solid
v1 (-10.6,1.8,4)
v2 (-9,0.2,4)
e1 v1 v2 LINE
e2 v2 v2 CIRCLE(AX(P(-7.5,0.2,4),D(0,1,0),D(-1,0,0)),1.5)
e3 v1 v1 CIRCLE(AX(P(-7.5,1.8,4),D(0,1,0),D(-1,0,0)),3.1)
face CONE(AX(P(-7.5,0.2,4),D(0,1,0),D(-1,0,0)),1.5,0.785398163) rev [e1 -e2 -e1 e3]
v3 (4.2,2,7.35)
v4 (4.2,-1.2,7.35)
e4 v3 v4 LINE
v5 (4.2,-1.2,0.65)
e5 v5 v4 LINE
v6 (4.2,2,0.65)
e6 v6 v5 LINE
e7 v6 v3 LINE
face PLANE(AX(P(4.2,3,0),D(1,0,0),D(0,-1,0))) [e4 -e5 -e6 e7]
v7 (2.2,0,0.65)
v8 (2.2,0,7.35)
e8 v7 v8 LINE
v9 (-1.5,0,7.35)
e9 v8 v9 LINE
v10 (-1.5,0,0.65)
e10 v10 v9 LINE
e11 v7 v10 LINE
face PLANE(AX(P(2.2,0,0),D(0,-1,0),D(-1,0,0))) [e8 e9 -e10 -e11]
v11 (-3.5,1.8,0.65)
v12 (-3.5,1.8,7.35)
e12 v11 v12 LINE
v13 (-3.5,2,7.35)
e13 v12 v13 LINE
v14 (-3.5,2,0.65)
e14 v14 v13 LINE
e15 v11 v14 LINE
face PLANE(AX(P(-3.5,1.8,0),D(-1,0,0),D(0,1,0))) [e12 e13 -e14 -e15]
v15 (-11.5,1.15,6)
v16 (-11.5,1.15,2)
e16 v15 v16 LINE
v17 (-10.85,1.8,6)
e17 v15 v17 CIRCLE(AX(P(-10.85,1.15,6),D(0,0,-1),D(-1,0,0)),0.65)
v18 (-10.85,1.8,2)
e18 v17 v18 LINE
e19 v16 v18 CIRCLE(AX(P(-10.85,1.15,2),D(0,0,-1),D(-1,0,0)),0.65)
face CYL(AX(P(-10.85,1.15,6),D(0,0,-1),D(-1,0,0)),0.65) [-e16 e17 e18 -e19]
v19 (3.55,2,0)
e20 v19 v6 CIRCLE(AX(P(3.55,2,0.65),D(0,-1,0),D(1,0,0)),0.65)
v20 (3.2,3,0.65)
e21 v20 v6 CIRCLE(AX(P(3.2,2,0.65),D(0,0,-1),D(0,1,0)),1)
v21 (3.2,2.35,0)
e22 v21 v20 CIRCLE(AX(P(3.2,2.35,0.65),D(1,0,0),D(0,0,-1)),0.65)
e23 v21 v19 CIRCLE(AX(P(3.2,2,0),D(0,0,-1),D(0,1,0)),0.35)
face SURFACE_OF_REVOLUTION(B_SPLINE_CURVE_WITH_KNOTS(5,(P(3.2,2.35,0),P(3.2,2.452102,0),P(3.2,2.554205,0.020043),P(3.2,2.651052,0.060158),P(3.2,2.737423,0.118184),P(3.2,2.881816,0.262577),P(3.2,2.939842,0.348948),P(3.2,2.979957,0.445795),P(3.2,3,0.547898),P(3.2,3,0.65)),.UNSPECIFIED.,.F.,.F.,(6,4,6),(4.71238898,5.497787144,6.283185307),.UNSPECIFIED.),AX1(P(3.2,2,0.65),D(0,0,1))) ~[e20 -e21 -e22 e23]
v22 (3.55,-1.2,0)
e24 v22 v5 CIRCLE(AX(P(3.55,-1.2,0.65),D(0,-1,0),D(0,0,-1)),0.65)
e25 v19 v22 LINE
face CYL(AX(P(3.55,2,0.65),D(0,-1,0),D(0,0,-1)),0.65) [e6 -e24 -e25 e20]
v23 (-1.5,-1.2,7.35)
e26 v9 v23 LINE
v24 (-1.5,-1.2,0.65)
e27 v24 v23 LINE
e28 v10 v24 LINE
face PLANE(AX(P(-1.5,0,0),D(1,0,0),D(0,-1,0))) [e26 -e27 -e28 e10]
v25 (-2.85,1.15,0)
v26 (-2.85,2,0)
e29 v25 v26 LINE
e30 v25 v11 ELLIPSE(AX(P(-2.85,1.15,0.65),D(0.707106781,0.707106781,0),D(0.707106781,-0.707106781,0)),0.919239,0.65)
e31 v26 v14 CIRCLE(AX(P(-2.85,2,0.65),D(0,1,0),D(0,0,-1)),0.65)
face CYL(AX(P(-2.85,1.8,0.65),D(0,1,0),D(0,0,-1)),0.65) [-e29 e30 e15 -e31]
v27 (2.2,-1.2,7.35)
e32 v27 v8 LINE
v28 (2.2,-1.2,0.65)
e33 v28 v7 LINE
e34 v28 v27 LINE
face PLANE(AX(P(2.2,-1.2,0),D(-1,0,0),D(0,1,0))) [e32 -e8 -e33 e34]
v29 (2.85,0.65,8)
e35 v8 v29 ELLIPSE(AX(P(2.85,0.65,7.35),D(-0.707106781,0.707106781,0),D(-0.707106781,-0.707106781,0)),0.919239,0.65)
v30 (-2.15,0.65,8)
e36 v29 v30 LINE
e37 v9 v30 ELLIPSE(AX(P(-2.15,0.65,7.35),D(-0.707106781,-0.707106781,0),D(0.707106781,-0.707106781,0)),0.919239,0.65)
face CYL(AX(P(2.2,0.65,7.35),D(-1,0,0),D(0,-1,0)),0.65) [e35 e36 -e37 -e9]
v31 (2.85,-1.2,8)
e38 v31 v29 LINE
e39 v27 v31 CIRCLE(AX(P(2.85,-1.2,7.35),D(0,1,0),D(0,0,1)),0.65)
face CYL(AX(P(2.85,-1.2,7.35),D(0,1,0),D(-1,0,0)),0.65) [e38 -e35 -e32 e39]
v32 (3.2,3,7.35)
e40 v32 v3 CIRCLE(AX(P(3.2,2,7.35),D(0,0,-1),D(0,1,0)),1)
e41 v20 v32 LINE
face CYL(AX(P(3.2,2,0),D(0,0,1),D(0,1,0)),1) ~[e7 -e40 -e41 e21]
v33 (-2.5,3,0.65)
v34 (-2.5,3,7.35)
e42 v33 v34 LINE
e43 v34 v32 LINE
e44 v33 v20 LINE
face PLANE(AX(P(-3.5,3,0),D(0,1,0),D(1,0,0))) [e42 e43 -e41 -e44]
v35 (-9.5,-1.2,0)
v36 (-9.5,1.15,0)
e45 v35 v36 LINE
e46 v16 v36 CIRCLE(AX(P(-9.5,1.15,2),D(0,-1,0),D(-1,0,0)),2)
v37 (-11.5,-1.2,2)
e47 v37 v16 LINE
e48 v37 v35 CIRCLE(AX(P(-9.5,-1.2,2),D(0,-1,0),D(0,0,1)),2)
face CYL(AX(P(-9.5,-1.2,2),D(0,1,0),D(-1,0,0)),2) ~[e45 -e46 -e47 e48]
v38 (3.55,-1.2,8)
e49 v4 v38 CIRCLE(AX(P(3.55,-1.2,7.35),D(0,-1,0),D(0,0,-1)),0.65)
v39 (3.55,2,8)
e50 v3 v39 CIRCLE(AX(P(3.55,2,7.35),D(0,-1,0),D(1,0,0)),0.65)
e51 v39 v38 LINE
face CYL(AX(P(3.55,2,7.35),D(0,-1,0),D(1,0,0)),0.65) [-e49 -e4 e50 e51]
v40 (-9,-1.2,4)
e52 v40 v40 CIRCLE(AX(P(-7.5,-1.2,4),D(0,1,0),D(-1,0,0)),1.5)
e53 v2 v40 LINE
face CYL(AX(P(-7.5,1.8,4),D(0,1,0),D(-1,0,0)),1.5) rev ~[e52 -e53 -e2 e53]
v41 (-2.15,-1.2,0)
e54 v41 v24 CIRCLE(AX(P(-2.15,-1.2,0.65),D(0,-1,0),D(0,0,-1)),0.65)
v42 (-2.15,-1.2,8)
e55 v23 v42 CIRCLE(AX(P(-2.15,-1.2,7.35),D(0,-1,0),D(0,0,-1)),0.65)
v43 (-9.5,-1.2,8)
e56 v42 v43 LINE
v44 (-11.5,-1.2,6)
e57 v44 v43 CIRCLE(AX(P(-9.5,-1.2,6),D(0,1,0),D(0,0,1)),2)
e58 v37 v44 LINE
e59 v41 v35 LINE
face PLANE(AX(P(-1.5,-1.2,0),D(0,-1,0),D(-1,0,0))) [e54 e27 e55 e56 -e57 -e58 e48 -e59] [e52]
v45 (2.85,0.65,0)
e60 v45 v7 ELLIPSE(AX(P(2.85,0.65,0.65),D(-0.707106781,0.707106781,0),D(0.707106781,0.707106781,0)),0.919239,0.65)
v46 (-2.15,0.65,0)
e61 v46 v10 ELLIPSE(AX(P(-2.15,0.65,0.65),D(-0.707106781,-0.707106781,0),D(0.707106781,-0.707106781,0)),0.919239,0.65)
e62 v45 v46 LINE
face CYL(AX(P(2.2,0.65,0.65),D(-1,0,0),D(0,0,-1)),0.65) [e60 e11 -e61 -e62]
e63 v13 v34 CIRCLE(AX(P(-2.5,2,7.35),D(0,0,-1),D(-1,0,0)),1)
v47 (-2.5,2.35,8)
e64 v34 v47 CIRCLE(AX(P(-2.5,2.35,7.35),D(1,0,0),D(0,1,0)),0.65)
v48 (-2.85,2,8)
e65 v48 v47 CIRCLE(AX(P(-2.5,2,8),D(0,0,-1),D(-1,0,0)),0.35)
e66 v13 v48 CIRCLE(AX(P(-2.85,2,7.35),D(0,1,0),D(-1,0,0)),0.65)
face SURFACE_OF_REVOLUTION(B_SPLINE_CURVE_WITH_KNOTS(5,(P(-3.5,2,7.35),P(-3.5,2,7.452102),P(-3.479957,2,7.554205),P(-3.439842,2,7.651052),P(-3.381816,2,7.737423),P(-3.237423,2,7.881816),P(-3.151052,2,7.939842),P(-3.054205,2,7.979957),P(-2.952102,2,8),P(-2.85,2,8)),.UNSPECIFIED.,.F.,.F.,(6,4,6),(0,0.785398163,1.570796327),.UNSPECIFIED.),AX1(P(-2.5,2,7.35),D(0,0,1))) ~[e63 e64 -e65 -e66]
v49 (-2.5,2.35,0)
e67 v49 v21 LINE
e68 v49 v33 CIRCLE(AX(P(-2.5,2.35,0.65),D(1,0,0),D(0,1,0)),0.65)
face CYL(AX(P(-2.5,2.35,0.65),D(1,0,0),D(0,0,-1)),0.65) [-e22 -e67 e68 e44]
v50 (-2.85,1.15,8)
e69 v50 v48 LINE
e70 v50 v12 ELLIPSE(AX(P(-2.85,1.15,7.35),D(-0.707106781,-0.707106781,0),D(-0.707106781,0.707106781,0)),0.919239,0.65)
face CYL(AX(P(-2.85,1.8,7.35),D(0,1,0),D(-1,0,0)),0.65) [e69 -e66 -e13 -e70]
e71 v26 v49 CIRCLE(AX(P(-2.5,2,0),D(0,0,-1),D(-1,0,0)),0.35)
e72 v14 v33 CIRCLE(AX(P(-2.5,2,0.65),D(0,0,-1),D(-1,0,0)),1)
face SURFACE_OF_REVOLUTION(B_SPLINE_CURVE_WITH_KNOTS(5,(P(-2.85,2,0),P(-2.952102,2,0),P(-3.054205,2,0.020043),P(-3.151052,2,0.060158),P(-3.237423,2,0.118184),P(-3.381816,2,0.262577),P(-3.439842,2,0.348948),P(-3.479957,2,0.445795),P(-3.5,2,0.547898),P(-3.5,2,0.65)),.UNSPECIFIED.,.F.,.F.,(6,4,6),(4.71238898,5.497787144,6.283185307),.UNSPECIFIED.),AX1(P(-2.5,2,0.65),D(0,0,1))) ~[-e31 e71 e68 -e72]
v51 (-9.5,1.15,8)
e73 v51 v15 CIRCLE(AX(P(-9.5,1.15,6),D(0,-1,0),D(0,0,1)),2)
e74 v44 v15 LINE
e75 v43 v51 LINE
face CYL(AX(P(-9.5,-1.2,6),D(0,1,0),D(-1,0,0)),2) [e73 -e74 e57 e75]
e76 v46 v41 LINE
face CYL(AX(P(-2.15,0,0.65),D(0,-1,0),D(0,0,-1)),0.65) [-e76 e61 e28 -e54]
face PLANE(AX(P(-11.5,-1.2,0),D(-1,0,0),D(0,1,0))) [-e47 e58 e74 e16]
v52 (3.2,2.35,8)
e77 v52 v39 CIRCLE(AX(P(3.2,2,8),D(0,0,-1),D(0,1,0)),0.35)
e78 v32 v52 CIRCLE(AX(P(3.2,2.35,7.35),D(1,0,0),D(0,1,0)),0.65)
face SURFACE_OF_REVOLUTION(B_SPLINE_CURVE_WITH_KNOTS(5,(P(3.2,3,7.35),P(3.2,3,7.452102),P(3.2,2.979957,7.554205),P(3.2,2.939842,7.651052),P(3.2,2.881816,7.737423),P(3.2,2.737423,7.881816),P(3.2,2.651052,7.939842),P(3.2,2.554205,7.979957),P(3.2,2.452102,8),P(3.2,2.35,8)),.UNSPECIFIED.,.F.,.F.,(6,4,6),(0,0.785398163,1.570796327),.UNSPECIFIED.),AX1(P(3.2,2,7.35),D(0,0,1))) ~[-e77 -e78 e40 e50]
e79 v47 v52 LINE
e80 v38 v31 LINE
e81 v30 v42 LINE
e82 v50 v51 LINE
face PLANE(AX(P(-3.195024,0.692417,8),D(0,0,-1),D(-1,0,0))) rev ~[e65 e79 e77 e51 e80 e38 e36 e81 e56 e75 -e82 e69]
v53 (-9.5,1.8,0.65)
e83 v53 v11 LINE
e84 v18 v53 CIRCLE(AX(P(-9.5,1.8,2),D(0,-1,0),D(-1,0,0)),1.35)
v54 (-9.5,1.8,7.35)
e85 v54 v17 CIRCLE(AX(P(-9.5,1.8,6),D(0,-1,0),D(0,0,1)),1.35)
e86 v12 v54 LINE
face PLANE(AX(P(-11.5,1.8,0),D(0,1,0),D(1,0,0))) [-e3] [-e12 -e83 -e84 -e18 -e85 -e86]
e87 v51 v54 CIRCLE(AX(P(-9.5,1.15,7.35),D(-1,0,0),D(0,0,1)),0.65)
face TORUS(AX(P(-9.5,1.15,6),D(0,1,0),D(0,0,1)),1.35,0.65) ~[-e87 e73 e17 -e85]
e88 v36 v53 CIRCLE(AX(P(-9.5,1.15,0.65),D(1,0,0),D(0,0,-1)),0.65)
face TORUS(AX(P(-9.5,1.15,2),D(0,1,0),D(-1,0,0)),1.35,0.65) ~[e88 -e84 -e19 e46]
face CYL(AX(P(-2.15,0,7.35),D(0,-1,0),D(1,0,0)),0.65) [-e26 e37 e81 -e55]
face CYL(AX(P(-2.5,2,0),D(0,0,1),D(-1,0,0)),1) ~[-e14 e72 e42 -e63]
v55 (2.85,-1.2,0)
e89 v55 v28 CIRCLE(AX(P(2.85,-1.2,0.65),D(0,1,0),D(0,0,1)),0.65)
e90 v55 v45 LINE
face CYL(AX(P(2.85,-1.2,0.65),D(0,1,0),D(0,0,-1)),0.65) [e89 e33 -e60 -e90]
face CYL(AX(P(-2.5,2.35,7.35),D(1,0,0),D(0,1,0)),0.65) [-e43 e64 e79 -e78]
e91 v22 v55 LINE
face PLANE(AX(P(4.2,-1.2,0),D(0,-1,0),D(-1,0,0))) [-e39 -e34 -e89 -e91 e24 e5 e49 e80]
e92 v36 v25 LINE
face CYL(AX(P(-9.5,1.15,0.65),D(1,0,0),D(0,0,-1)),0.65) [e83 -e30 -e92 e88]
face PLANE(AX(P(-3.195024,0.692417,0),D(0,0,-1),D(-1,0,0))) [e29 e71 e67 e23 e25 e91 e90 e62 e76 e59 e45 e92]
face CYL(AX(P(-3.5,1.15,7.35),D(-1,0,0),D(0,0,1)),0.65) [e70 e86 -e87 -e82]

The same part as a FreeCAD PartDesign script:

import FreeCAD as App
import Part
import Sketcher

V = App.Vector


def edges_at(feature, points):
    """Names of the edges that pass closest to the given points."""
    edges = feature.Shape.Edges
    near = lambda p: min(range(len(edges)), key=lambda i: edges[i].distToShape(Part.Vertex(*p))[0])
    return sorted({f"Edge{near(p) + 1}" for p in points})


def add_polygon(sketch, points):
    """Adds a closed chain of lines whose ends are joined by coincident constraints."""
    first, n = sketch.GeometryCount, len(points)
    for a, b in zip(points, points[1:] + points[:1]):
        sketch.addGeometry(Part.LineSegment(App.Vector(*a, 0), App.Vector(*b, 0)), False)
    for i in range(n):
        sketch.addConstraint(Sketcher.Constraint("Coincident", first + i, 2, first + (i + 1) % n, 1))

doc = App.newDocument("Part")
body = doc.addObject("PartDesign::Body", "Body")

sketch1 = doc.addObject("Sketcher::SketchObject", "Sketch")
body.addObject(sketch1)
sketch1.AttachmentSupport = (doc.XY_Plane, [""])
sketch1.MapMode = "FlatFace"
add_polygon(sketch1, [(-11.5, 1.8), (-11.5, -1.2), (-1.5, -1.2), (-1.5, 0), (2.2, 0), (2.2, -1.2), (4.2, -1.2), (4.2, 3), (-3.5, 3), (-3.5, 1.8)])
sketch1.addConstraint([
    Sketcher.Constraint("Vertical", 0),
    Sketcher.Constraint("Horizontal", 1),
    Sketcher.Constraint("Vertical", 2),
    Sketcher.Constraint("Horizontal", 3),
    Sketcher.Constraint("Vertical", 4),
    Sketcher.Constraint("Horizontal", 5),
    Sketcher.Constraint("Vertical", 6),
    Sketcher.Constraint("Horizontal", 7),
    Sketcher.Constraint("Vertical", 8),
    Sketcher.Constraint("Horizontal", 9),
    Sketcher.Constraint("PointOnObject", 2, 2, -1),
    Sketcher.Constraint("Horizontal", 1, 2, 4, 2),
    Sketcher.Constraint("Equal", 4, 8),
    Sketcher.Constraint("DistanceX", 1, 1, 1, 2, 10.0),
    Sketcher.Constraint("DistanceX", 5, 1, 5, 2, 2.0),
    Sketcher.Constraint("DistanceX", 9, 2, 9, 1, 8.0),
    Sketcher.Constraint("DistanceY", 0, 2, 0, 1, 3.0),
    Sketcher.Constraint("DistanceX", 3, 1, 3, 2, 3.7),
    Sketcher.Constraint("DistanceY", 2, 1, 2, 2, 1.2),
    Sketcher.Constraint("DistanceX", 0, 2, -1, 1, 11.5),
])
pad1 = doc.addObject("PartDesign::Pad", "Pad")
body.addObject(pad1)
pad1.Profile = sketch1
pad1.Length = 8

sketch2 = doc.addObject("Sketcher::SketchObject", "Sketch001")
body.addObject(sketch2)
sketch2.AttachmentSupport = (doc.XZ_Plane, [""])
sketch2.MapMode = "FlatFace"
sketch2.AttachmentOffset = App.Placement(V(0, 0, -1.8), App.Rotation())
sketch2.addGeometry(Part.Circle(V(-7.5, 4, 0), V(0, 0, 1), 1.5), False)
sketch2.addConstraint([
    Sketcher.Constraint("Diameter", 0, 3.0),
    Sketcher.Constraint("DistanceY", -1, 1, 0, 3, 4.0),
    Sketcher.Constraint("DistanceX", 0, 3, -1, 1, 7.5),
])
pocket1 = doc.addObject("PartDesign::Pocket", "Pocket")
body.addObject(pocket1)
pocket1.Profile = sketch2
pocket1.Length = 6
pocket1.Reversed = True
doc.recompute()

chamfer = doc.addObject("PartDesign::Chamfer", "Chamfer")
body.addObject(chamfer)
chamfer.Base = (pocket1, edges_at(pocket1, [(-6, 1.8, 4)]))
chamfer.Size = 1.6
doc.recompute()

fillet = doc.addObject("PartDesign::Fillet", "Fillet")
body.addObject(fillet)
fillet.Base = (chamfer, edges_at(chamfer, [(-11.5, 0.3, 0), (-11.5, 0.3, 8)]))
fillet.Radius = 2
doc.recompute()

fillet2 = doc.addObject("PartDesign::Fillet", "Fillet001")
body.addObject(fillet2)
fillet2.Base = (fillet, edges_at(fillet, [(-3.5, 3, 4), (4.2, 3, 4)]))
fillet2.Radius = 1
doc.recompute()

fillet3 = doc.addObject("PartDesign::Fillet", "Fillet002")
body.addObject(fillet3)
fillet3.Base = (fillet2, edges_at(fillet2, [
    (-1.5, -0.6, 0),
    (-6.5, 1.8, 0),
    (4.2, 0.4, 0),
    (2.2, -0.6, 0),
    (0.35, 0, 0),
    (4.2, 0.4, 8),
    (-6.5, 1.8, 8),
    (-1.5, -0.6, 8),
    (-11.5, 1.8, 4),
    (-10.914, 1.8, 0.586),
    (-10.914, 1.8, 7.414),
    (0.35, 0, 8),
    (-3.5, 1.9, 0),
    (-3.5, 1.9, 8),
    (0.35, 3, 0),
    (3.907, 2.707, 0),
    (-3.207, 2.707, 0),
    (0.35, 3, 8),
    (3.907, 2.707, 8),
    (-3.207, 2.707, 8),
    (2.2, -0.6, 8),
]))
fillet3.Radius = 0.65

doc.recompute()
